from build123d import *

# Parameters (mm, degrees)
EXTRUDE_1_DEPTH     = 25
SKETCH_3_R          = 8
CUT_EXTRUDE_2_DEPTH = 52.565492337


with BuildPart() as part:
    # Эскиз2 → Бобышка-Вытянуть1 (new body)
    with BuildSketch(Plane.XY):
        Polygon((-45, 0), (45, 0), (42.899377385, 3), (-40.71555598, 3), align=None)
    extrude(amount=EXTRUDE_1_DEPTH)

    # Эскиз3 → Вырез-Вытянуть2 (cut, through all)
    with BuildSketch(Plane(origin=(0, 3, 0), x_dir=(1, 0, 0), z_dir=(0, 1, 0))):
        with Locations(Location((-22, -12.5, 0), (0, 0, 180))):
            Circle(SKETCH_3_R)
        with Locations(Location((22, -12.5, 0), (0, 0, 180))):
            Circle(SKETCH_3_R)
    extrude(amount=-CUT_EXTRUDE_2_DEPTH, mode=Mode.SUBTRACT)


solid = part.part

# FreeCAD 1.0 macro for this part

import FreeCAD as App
import Part
import Sketcher
Q = App.Units.Quantity

doc = App.newDocument("Part")
params = doc.addObject("Spreadsheet::Sheet", "Params")
for row, (alias, value) in enumerate([
    ("sketch1_width", "90 mm"),
    ("pad1_length", "25 mm"),
    ("sketch2_diameter", "16 mm"),
], start=1):
    params.set(f"A{row}", alias)
    params.set(f"B{row}", "=" + value)
    params.setAlias(f"B{row}", alias)

body = doc.addObject("PartDesign::Body", "Body")

sketch1 = body.newObject("Sketcher::SketchObject", "Sketch")
sketch1.AttachmentSupport = (doc.getObject("XY_Plane"), [""])
sketch1.MapMode = "FlatFace"
sketch1.addGeometry(Part.LineSegment(App.Vector(-45, 0, 0), App.Vector(45, 0, 0)), False)
sketch1.addGeometry(Part.LineSegment(App.Vector(45, 0, 0), App.Vector(42.899377, 3, 0)), False)
sketch1.addGeometry(Part.LineSegment(App.Vector(42.899377, 3, 0), App.Vector(-40.715556, 3, 0)), False)
sketch1.addGeometry(Part.LineSegment(App.Vector(-40.715556, 3, 0), App.Vector(-45, 0, 0)), False)
sketch1.addConstraint(Sketcher.Constraint("Coincident", 0, 2, 1, 1))
sketch1.addConstraint(Sketcher.Constraint("Coincident", 1, 2, 2, 1))
sketch1.addConstraint(Sketcher.Constraint("Coincident", 2, 2, 3, 1))
sketch1.addConstraint(Sketcher.Constraint("Coincident", 3, 2, 0, 1))
sketch1.addConstraint(Sketcher.Constraint("Horizontal", 0))
sketch1.addConstraint(Sketcher.Constraint("Horizontal", 2))
sketch1.addConstraint(Sketcher.Constraint("Symmetric", 0, 2, 3, 2, -1, 1))
sketch1.addConstraint(Sketcher.Constraint("Perpendicular", 1, 3))
sketch1.addConstraint(Sketcher.Constraint("DistanceX", 0, 1, 0, 2, Q("90 mm")))
sketch1.addConstraint(Sketcher.Constraint("Angle", 1, Q("125 deg")))
sketch1.addConstraint(Sketcher.Constraint("DistanceY", -1, 1, 1, 2, Q("3 mm")))
sketch1.setExpression("Constraints[8]", "Params.sketch1_width")
pad1 = body.newObject("PartDesign::Pad", "Pad")
pad1.Profile = sketch1
pad1.setExpression("Length", "Params.pad1_length")

sketch2 = body.newObject("Sketcher::SketchObject", "Sketch001")
sketch2.AttachmentSupport = (doc.getObject("XZ_Plane"), [""])
sketch2.MapMode = "FlatFace"
sketch2.AttachmentOffset = App.Placement(App.Vector(0, 0, -3), App.Rotation())
sketch2.addGeometry(Part.Circle(App.Vector(-22, 12.5, 0), App.Vector(0, 0, 1), 8), False)
sketch2.addGeometry(Part.Circle(App.Vector(22, 12.5, 0), App.Vector(0, 0, 1), 8), False)
sketch2.addConstraint(Sketcher.Constraint("Equal", 0, 1))
sketch2.addConstraint(Sketcher.Constraint("Symmetric", 0, 3, 1, 3, -2))
sketch2.addConstraint(Sketcher.Constraint("Diameter", 0, Q("16 mm")))
sketch2.addConstraint(Sketcher.Constraint("DistanceX", 0, 3, -1, 1, Q("22 mm")))
sketch2.addConstraint(Sketcher.Constraint("DistanceY", -1, 1, 0, 3, Q("12.5 mm")))
sketch2.setExpression("Constraints[2]", "Params.sketch2_diameter")
pocket1 = body.newObject("PartDesign::Pocket", "Pocket")
pocket1.Profile = sketch2
pocket1.Type = "ThroughAll"
pocket1.Reversed = True

doc.recompute()
